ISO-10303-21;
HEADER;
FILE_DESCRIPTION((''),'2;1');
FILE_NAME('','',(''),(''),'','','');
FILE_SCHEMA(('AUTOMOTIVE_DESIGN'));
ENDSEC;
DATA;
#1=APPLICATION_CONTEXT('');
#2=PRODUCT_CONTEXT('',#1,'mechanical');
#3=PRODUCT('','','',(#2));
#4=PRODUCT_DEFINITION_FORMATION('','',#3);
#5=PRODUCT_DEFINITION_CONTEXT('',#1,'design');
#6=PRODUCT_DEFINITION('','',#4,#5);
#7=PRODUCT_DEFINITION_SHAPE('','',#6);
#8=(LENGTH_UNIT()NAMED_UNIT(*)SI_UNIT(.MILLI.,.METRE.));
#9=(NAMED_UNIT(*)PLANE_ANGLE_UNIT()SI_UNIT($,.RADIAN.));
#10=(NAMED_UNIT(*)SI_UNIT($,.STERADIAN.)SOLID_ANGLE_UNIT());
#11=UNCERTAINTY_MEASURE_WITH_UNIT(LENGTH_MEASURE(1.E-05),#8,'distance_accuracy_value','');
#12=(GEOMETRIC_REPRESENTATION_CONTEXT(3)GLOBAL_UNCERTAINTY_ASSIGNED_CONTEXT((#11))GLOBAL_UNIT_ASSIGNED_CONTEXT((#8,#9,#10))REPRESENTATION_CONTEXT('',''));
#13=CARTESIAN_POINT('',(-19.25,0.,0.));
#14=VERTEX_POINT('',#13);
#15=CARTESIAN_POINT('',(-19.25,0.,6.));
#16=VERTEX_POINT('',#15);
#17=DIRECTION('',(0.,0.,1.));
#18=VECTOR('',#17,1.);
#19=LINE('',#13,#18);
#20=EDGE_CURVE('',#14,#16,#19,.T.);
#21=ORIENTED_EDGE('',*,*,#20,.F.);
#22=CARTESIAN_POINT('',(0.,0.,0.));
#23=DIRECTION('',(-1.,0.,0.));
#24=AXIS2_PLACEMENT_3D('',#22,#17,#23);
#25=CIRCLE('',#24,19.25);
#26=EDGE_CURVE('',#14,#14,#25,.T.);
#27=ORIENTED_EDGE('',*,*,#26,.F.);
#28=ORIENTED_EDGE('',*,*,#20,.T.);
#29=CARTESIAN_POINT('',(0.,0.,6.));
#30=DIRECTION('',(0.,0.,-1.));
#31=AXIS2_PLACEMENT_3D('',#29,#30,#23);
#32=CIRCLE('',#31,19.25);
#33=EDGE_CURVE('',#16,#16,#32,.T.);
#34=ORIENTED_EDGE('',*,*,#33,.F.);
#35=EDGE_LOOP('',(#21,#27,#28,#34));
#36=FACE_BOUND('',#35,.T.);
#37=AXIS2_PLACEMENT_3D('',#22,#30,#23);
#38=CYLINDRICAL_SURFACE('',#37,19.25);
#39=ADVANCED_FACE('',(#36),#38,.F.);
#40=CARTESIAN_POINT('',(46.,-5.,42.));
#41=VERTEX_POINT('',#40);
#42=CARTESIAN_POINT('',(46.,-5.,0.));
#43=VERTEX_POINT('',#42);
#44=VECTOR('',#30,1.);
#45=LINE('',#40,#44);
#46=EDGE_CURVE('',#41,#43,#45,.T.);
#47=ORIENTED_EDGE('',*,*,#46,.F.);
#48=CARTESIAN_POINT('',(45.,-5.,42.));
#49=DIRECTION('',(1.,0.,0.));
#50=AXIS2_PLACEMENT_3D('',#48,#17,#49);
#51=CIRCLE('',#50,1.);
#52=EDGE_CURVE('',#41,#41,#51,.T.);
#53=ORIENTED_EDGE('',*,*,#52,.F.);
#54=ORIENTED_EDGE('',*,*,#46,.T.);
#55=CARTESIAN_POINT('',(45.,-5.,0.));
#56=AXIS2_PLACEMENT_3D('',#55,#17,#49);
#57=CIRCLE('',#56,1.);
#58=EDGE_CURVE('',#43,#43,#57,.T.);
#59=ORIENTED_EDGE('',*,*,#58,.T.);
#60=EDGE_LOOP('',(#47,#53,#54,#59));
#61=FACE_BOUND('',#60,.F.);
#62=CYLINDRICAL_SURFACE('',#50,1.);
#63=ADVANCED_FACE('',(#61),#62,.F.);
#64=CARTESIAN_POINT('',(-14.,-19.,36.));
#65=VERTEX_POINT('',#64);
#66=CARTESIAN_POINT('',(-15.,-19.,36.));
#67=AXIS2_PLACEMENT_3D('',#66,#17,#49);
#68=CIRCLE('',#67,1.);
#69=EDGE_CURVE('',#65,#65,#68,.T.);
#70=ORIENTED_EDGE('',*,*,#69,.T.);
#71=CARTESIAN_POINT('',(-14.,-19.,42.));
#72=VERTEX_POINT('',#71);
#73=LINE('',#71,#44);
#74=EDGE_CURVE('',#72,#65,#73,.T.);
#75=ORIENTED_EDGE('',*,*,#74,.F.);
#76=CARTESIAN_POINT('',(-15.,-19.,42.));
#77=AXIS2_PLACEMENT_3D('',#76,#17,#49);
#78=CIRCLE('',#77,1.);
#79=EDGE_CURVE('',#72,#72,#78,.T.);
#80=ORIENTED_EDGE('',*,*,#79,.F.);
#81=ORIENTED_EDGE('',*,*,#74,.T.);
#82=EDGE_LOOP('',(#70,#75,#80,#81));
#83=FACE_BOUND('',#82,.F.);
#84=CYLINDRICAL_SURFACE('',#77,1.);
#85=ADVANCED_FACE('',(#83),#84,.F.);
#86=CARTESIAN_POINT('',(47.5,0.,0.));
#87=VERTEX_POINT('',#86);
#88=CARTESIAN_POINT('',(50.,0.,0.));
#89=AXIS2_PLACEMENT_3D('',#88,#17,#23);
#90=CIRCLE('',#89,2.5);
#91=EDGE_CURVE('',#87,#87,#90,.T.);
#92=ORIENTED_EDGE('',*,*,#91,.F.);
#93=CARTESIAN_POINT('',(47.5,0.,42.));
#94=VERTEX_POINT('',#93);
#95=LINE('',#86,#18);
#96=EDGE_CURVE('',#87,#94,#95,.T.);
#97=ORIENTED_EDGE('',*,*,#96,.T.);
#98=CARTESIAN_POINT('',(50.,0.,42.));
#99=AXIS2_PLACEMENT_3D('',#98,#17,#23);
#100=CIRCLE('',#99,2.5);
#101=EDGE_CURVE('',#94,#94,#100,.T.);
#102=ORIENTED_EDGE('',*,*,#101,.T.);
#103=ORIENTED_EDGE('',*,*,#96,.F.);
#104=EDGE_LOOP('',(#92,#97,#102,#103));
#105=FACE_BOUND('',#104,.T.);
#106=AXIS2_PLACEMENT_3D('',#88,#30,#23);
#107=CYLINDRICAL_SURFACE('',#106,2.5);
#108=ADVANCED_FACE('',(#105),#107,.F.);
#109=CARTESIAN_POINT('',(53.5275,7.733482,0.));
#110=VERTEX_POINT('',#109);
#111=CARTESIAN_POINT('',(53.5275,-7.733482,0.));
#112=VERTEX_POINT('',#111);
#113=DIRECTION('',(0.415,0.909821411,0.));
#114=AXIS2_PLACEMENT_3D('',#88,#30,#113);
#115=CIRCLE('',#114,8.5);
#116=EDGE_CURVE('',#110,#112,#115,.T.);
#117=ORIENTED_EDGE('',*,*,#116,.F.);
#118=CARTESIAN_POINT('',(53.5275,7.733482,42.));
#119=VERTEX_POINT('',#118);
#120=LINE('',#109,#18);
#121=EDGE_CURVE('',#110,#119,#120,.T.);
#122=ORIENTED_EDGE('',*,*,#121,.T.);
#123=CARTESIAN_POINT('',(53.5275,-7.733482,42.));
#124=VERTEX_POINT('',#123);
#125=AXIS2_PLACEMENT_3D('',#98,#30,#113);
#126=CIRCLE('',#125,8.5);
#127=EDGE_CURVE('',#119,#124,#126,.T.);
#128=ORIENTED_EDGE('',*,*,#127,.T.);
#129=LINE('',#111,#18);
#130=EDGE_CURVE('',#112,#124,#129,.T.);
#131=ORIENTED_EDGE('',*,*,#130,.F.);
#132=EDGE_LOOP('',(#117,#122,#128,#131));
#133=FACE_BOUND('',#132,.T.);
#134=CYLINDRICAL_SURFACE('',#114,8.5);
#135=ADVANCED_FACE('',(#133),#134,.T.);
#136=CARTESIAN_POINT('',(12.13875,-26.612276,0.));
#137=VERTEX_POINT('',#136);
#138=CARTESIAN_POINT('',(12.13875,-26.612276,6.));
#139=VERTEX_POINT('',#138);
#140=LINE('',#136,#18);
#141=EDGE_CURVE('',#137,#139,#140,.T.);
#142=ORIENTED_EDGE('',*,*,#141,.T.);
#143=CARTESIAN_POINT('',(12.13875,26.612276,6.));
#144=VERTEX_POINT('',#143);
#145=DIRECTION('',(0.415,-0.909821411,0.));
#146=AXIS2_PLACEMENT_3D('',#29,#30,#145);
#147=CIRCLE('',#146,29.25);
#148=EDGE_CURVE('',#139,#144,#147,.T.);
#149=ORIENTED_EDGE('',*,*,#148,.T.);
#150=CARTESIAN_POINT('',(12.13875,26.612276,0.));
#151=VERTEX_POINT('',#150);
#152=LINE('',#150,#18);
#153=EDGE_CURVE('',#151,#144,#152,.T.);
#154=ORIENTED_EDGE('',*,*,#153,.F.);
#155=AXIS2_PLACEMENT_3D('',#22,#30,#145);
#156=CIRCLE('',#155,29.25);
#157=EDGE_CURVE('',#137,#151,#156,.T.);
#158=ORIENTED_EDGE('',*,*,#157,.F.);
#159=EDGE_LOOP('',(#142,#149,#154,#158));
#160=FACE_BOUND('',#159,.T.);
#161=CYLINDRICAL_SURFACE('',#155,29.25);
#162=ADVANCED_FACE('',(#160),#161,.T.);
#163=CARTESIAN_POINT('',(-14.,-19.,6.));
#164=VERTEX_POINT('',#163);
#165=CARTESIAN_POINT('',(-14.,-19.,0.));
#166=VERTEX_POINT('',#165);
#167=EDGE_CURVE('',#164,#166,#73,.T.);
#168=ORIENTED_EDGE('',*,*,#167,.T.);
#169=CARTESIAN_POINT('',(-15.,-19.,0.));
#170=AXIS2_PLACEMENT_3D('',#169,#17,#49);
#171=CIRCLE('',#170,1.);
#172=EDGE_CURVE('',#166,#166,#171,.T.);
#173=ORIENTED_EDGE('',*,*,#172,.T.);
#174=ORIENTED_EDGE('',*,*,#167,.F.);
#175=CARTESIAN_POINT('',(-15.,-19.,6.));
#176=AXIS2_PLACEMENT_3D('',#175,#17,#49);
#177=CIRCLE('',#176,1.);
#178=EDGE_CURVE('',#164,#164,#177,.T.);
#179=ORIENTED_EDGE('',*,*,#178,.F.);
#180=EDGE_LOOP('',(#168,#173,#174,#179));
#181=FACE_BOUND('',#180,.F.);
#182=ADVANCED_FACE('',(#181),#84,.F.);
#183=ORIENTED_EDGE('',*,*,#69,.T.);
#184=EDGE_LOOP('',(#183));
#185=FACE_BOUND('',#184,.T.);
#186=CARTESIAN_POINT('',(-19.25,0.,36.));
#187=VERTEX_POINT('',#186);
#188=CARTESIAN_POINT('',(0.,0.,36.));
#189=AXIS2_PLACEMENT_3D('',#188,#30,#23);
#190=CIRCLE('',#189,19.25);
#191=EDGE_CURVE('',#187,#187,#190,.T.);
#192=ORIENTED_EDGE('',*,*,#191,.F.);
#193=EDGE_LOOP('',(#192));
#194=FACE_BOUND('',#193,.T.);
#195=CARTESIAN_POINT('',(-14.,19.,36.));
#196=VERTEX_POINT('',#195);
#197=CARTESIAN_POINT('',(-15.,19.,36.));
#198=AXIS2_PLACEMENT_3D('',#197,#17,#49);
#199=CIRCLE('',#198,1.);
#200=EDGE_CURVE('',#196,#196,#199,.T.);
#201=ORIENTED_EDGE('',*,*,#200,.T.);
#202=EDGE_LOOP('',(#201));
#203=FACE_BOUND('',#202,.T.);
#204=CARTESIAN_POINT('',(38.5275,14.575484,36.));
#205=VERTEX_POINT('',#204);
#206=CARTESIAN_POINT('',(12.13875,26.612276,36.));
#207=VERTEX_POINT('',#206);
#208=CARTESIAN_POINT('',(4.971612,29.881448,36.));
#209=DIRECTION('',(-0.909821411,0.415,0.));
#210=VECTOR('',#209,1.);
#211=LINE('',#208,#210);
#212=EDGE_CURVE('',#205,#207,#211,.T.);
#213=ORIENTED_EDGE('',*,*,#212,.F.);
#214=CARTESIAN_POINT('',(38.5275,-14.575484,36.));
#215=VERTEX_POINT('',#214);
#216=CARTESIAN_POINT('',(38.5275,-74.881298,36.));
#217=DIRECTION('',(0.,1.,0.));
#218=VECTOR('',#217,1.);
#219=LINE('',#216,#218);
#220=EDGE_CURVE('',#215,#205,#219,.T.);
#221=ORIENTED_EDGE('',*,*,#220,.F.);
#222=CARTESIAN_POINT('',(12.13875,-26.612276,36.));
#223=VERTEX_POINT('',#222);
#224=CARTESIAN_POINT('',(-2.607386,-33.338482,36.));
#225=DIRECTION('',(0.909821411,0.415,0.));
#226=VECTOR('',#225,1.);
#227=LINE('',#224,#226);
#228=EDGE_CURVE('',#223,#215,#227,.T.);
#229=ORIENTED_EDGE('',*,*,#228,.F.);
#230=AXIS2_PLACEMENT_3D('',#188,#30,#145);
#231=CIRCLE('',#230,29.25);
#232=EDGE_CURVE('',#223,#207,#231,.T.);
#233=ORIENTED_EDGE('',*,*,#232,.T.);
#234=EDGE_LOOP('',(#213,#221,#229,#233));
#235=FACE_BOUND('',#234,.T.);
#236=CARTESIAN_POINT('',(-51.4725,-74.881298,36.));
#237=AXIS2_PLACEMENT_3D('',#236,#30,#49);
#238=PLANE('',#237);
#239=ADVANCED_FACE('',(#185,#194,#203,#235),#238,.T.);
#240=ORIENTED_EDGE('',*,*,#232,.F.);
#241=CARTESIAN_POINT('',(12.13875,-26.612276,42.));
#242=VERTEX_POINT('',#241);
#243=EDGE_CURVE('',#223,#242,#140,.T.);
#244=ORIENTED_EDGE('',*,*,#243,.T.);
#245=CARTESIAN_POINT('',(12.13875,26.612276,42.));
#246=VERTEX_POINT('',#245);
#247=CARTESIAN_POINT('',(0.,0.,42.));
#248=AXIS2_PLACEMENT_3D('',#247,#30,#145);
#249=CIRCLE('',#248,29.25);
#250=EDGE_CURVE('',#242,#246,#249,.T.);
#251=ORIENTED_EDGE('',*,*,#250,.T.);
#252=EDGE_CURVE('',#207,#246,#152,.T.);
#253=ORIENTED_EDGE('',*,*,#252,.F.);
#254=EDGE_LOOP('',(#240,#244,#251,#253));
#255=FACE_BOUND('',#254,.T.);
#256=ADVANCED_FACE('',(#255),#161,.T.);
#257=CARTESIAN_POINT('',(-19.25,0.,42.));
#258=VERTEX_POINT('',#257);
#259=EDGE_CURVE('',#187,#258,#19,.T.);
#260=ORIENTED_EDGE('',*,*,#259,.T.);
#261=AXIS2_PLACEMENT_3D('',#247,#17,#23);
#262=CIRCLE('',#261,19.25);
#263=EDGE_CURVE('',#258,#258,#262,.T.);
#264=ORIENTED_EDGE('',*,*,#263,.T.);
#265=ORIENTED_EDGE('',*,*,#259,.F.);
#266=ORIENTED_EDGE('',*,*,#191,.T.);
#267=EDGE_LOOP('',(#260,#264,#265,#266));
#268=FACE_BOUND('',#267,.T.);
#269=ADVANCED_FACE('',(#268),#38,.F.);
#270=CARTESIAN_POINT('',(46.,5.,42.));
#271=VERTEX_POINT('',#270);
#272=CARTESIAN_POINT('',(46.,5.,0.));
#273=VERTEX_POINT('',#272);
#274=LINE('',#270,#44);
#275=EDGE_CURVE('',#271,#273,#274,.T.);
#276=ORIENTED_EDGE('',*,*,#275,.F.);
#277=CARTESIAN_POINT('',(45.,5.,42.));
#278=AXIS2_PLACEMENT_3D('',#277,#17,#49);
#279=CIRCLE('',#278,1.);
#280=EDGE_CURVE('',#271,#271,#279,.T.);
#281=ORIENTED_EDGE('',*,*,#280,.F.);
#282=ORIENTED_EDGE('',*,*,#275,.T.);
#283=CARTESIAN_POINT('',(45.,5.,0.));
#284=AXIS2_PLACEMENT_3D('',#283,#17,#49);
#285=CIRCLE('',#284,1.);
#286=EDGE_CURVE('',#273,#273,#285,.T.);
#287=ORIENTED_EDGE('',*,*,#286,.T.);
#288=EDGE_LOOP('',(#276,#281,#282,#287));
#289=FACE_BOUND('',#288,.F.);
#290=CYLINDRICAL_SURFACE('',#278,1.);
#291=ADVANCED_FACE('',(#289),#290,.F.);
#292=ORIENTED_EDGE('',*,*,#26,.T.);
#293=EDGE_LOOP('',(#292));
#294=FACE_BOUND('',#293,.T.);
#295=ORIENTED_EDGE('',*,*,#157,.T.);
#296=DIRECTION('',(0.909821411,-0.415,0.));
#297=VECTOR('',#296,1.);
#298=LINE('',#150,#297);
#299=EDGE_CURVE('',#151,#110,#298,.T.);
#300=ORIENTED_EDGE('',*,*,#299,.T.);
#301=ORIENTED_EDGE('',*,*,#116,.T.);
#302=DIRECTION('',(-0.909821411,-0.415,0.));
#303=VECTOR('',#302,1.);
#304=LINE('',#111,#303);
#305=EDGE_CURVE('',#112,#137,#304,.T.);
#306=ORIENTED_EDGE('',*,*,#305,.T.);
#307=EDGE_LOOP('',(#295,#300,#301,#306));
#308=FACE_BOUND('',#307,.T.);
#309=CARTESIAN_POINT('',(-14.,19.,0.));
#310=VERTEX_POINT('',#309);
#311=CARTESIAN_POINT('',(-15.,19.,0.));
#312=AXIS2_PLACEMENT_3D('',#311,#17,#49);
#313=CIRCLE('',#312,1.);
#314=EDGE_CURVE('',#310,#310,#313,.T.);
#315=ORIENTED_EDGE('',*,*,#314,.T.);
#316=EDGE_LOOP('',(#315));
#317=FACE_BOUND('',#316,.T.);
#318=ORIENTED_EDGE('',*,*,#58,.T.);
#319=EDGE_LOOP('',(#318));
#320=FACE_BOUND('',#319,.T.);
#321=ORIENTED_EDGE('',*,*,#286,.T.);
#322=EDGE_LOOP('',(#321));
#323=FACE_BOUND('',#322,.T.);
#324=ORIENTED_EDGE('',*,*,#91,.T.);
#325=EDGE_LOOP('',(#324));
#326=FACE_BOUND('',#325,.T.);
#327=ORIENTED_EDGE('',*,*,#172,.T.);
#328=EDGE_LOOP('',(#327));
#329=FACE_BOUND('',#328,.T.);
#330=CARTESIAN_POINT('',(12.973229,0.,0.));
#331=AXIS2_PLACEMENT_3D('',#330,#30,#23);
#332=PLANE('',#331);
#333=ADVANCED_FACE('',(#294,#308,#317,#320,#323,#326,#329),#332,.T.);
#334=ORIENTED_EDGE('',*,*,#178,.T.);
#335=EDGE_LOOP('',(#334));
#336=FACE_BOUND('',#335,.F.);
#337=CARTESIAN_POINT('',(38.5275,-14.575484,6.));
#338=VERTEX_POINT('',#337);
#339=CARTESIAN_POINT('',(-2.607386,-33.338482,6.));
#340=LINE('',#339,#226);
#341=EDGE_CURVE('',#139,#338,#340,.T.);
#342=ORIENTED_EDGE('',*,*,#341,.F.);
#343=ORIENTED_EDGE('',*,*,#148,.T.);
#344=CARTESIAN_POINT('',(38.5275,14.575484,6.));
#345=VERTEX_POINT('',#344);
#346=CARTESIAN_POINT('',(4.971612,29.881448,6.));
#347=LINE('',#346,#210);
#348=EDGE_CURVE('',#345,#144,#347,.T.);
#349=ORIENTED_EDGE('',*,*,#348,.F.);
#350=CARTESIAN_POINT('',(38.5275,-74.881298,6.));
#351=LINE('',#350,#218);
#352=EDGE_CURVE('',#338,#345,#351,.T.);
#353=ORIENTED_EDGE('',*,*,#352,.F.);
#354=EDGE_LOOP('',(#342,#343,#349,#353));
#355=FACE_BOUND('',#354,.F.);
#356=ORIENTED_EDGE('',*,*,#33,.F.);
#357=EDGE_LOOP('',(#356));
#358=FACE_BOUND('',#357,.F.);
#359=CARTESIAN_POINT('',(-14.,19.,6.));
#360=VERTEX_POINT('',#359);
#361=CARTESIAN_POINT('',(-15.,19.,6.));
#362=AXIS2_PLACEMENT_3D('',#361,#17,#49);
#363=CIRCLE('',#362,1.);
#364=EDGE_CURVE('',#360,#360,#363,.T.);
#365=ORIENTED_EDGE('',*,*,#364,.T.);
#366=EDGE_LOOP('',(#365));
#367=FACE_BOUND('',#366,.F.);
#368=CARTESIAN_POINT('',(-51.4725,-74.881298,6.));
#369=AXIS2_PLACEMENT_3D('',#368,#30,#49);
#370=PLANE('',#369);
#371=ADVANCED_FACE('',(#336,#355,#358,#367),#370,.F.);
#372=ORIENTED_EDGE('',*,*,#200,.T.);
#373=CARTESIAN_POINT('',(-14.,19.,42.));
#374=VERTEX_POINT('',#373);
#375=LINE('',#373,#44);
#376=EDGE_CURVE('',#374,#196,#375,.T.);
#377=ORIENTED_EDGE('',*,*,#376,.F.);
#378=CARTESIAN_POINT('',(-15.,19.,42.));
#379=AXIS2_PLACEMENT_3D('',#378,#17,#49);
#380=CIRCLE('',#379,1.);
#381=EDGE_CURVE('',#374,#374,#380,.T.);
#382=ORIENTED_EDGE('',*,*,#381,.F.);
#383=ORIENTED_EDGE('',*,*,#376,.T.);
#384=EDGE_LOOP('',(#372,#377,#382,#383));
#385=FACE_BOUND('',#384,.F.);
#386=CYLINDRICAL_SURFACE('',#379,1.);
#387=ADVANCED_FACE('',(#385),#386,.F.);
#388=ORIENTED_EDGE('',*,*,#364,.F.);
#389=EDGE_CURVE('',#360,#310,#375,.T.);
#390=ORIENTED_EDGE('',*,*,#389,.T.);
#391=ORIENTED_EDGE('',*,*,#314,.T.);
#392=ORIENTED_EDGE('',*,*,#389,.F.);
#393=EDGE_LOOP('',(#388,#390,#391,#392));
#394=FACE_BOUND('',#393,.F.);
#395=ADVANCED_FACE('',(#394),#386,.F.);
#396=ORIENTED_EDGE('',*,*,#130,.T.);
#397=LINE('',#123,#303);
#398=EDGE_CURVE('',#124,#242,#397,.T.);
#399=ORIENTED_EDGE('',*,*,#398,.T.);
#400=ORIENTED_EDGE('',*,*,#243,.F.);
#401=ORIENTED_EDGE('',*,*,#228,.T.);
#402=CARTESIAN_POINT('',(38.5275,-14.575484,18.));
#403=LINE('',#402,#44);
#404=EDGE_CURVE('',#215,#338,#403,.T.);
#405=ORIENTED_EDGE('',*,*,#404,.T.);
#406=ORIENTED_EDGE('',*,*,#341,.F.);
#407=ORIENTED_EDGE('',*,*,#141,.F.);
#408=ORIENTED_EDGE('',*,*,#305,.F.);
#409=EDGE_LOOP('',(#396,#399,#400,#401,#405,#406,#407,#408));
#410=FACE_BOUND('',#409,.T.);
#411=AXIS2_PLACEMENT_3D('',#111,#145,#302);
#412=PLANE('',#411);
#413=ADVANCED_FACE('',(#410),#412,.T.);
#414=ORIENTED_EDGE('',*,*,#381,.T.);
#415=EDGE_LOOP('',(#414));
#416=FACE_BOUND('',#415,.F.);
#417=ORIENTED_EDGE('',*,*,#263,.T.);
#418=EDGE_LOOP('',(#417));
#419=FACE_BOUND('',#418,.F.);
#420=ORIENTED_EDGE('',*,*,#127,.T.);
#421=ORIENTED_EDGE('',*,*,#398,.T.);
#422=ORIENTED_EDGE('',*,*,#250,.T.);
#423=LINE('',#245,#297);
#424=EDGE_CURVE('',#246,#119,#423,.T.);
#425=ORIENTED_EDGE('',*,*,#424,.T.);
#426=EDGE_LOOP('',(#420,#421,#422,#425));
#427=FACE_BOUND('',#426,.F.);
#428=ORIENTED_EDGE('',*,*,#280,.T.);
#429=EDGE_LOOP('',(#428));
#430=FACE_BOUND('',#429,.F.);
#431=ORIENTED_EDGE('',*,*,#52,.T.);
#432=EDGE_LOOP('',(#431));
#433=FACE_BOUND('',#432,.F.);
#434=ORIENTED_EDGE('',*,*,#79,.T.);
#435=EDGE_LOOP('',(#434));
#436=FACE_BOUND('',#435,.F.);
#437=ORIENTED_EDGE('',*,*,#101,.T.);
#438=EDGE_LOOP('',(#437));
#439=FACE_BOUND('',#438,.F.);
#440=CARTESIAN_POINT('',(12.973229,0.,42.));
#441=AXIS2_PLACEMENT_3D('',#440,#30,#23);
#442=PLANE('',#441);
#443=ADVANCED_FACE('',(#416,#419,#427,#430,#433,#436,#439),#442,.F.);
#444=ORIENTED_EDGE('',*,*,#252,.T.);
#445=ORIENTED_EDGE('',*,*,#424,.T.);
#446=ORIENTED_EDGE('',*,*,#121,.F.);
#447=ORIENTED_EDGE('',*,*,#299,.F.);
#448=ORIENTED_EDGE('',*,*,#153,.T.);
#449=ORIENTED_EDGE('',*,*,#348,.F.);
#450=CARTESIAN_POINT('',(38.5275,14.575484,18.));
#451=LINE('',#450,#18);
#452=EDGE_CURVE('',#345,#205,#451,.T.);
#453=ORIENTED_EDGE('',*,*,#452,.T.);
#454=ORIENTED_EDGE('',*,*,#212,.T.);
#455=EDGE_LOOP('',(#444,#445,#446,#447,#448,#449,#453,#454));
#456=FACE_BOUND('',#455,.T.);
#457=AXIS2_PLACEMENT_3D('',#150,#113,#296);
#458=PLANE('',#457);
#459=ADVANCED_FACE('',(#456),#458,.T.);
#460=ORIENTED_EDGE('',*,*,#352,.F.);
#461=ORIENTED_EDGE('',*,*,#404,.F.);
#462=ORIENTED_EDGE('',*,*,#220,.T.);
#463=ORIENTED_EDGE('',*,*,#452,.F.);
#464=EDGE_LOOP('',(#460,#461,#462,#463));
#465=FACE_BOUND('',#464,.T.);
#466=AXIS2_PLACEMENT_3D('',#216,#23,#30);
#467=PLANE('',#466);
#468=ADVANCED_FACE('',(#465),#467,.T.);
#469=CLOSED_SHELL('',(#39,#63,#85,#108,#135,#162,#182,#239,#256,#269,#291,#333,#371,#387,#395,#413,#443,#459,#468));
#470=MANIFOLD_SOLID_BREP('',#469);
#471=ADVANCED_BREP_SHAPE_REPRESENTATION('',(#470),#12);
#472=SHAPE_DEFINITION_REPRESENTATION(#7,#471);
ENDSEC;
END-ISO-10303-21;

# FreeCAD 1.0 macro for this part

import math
import FreeCAD as App
import Part
import Sketcher
from FreeCAD import Vector


def add_polygon(sketch, points):
    """Adds a closed chain of lines whose ends are joined by coincident constraints."""
    first, n = sketch.GeometryCount, len(points)
    for a, b in zip(points, points[1:] + points[:1]):
        sketch.addGeometry(Part.LineSegment(App.Vector(*a, 0), App.Vector(*b, 0)), False)
    for i in range(n):
        sketch.addConstraint(Sketcher.Constraint("Coincident", first + i, 2, first + (i + 1) % n, 1))

doc = App.newDocument("Part")
body = doc.addObject("PartDesign::Body", "Body")

# Sketch on XY plane
sketch1 = body.newObject("Sketcher::SketchObject", "Sketch")
sketch1.AttachmentSupport = (doc.getObject("XY_Plane"), [""])
sketch1.MapMode = "FlatFace"
sketch1.addGeometry(Part.LineSegment(Vector(53.5, 7.7, 0), Vector(12.1, 26.6, 0)), False)
sketch1.addGeometry(Part.ArcOfCircle(Part.Circle(Vector(0, 0, 0), Vector(0, 0, 1), 29.2), math.radians(65), math.radians(295)), False)
sketch1.addGeometry(Part.LineSegment(Vector(12.1, -26.6, 0), Vector(53.5, -7.7, 0)), False)
sketch1.addGeometry(Part.ArcOfCircle(Part.Circle(Vector(50, 0, 0), Vector(0, 0, 1), 8.5), math.radians(-65), math.radians(65)), False)
sketch1.addGeometry(Part.Circle(Vector(50, 0, 0), Vector(0, 0, 1), 2.5), False)
sketch1.addGeometry(Part.Circle(Vector(0, 0, 0), Vector(0, 0, 1), 19.2), False)
sketch1.addConstraint(Sketcher.Constraint("Tangent", 0, 2, 1, 1))
sketch1.addConstraint(Sketcher.Constraint("Tangent", 1, 2, 2, 1))
sketch1.addConstraint(Sketcher.Constraint("Tangent", 2, 2, 3, 1))
sketch1.addConstraint(Sketcher.Constraint("Tangent", 3, 2, 0, 1))
sketch1.addConstraint(Sketcher.Constraint("Coincident", 1, 3, -1, 1))
sketch1.addConstraint(Sketcher.Constraint("Coincident", 5, 3, -1, 1))
sketch1.addConstraint(Sketcher.Constraint("Coincident", 4, 3, 3, 3))
sketch1.addConstraint(Sketcher.Constraint("PointOnObject", 3, 3, -1))
sketch1.addConstraint(Sketcher.Constraint("Diameter", 4, 5.0))
sketch1.addConstraint(Sketcher.Constraint("Diameter", 5, 38.5))
sketch1.addConstraint(Sketcher.Constraint("Radius", 3, 8.5))
sketch1.addConstraint(Sketcher.Constraint("Radius", 1, 29.25))
sketch1.addConstraint(Sketcher.Constraint("DistanceX", -1, 1, 3, 3, 50.0))
pad1 = body.newObject("PartDesign::Pad", "Pad")
pad1.Profile = sketch1
pad1.Length = 42

# Sketch on XZ plane
sketch2 = body.newObject("Sketcher::SketchObject", "Sketch001")
sketch2.AttachmentSupport = (doc.getObject("XZ_Plane"), [""])
sketch2.MapMode = "FlatFace"
add_polygon(sketch2, [(-51, 6), (-51, 36), (39, 36), (39, 6)])  # lines 0-3
sketch2.addConstraint(Sketcher.Constraint("Vertical", 0))
sketch2.addConstraint(Sketcher.Constraint("Horizontal", 1))
sketch2.addConstraint(Sketcher.Constraint("Vertical", 2))
sketch2.addConstraint(Sketcher.Constraint("Horizontal", 3))
sketch2.addConstraint(Sketcher.Constraint("DistanceX", 1, 1, 1, 2, 90.0))
sketch2.addConstraint(Sketcher.Constraint("DistanceY", 0, 1, 0, 2, 30.0))
sketch2.addConstraint(Sketcher.Constraint("DistanceY", -1, 1, 0, 2, 36.0))
sketch2.addConstraint(Sketcher.Constraint("DistanceX", 0, 2, -1, 1, 51.4725))
pocket1 = body.newObject("PartDesign::Pocket", "Pocket")
pocket1.Profile = sketch2
pocket1.Type = "ThroughAll"
pocket1.Midplane = True

# Sketch on XY plane
sketch3 = body.newObject("Sketcher::SketchObject", "Sketch002")
sketch3.AttachmentSupport = (doc.getObject("XY_Plane"), [""])
sketch3.MapMode = "FlatFace"
sketch3.AttachmentOffset = App.Placement(Vector(0, 0, 42), App.Rotation())
sketch3.addGeometry(Part.Circle(Vector(45, 5, 0), Vector(0, 0, 1), 1), False)
sketch3.addGeometry(Part.Circle(Vector(45, -5, 0), Vector(0, 0, 1), 1), False)
sketch3.addGeometry(Part.Circle(Vector(-15, 19, 0), Vector(0, 0, 1), 1), False)
sketch3.addGeometry(Part.Circle(Vector(-15, -19, 0), Vector(0, 0, 1), 1), False)
sketch3.addConstraint(Sketcher.Constraint("Equal", 0, 1))
sketch3.addConstraint(Sketcher.Constraint("Equal", 1, 2))
sketch3.addConstraint(Sketcher.Constraint("Equal", 2, 3))
sketch3.addConstraint(Sketcher.Constraint("Symmetric", 0, 3, 1, 3, -1))
sketch3.addConstraint(Sketcher.Constraint("Symmetric", 2, 3, 3, 3, -1))
sketch3.addConstraint(Sketcher.Constraint("Diameter", 0, 2.0))
sketch3.addConstraint(Sketcher.Constraint("DistanceX", -1, 1, 0, 3, 45.0))
sketch3.addConstraint(Sketcher.Constraint("DistanceY", -1, 1, 0, 3, 5.0))
sketch3.addConstraint(Sketcher.Constraint("DistanceX", 2, 3, -1, 1, 15.0))
sketch3.addConstraint(Sketcher.Constraint("DistanceY", -1, 1, 2, 3, 19.0))
pocket2 = body.newObject("PartDesign::Pocket", "Pocket001")
pocket2.Profile = sketch3
pocket2.Length = 42

doc.recompute()
